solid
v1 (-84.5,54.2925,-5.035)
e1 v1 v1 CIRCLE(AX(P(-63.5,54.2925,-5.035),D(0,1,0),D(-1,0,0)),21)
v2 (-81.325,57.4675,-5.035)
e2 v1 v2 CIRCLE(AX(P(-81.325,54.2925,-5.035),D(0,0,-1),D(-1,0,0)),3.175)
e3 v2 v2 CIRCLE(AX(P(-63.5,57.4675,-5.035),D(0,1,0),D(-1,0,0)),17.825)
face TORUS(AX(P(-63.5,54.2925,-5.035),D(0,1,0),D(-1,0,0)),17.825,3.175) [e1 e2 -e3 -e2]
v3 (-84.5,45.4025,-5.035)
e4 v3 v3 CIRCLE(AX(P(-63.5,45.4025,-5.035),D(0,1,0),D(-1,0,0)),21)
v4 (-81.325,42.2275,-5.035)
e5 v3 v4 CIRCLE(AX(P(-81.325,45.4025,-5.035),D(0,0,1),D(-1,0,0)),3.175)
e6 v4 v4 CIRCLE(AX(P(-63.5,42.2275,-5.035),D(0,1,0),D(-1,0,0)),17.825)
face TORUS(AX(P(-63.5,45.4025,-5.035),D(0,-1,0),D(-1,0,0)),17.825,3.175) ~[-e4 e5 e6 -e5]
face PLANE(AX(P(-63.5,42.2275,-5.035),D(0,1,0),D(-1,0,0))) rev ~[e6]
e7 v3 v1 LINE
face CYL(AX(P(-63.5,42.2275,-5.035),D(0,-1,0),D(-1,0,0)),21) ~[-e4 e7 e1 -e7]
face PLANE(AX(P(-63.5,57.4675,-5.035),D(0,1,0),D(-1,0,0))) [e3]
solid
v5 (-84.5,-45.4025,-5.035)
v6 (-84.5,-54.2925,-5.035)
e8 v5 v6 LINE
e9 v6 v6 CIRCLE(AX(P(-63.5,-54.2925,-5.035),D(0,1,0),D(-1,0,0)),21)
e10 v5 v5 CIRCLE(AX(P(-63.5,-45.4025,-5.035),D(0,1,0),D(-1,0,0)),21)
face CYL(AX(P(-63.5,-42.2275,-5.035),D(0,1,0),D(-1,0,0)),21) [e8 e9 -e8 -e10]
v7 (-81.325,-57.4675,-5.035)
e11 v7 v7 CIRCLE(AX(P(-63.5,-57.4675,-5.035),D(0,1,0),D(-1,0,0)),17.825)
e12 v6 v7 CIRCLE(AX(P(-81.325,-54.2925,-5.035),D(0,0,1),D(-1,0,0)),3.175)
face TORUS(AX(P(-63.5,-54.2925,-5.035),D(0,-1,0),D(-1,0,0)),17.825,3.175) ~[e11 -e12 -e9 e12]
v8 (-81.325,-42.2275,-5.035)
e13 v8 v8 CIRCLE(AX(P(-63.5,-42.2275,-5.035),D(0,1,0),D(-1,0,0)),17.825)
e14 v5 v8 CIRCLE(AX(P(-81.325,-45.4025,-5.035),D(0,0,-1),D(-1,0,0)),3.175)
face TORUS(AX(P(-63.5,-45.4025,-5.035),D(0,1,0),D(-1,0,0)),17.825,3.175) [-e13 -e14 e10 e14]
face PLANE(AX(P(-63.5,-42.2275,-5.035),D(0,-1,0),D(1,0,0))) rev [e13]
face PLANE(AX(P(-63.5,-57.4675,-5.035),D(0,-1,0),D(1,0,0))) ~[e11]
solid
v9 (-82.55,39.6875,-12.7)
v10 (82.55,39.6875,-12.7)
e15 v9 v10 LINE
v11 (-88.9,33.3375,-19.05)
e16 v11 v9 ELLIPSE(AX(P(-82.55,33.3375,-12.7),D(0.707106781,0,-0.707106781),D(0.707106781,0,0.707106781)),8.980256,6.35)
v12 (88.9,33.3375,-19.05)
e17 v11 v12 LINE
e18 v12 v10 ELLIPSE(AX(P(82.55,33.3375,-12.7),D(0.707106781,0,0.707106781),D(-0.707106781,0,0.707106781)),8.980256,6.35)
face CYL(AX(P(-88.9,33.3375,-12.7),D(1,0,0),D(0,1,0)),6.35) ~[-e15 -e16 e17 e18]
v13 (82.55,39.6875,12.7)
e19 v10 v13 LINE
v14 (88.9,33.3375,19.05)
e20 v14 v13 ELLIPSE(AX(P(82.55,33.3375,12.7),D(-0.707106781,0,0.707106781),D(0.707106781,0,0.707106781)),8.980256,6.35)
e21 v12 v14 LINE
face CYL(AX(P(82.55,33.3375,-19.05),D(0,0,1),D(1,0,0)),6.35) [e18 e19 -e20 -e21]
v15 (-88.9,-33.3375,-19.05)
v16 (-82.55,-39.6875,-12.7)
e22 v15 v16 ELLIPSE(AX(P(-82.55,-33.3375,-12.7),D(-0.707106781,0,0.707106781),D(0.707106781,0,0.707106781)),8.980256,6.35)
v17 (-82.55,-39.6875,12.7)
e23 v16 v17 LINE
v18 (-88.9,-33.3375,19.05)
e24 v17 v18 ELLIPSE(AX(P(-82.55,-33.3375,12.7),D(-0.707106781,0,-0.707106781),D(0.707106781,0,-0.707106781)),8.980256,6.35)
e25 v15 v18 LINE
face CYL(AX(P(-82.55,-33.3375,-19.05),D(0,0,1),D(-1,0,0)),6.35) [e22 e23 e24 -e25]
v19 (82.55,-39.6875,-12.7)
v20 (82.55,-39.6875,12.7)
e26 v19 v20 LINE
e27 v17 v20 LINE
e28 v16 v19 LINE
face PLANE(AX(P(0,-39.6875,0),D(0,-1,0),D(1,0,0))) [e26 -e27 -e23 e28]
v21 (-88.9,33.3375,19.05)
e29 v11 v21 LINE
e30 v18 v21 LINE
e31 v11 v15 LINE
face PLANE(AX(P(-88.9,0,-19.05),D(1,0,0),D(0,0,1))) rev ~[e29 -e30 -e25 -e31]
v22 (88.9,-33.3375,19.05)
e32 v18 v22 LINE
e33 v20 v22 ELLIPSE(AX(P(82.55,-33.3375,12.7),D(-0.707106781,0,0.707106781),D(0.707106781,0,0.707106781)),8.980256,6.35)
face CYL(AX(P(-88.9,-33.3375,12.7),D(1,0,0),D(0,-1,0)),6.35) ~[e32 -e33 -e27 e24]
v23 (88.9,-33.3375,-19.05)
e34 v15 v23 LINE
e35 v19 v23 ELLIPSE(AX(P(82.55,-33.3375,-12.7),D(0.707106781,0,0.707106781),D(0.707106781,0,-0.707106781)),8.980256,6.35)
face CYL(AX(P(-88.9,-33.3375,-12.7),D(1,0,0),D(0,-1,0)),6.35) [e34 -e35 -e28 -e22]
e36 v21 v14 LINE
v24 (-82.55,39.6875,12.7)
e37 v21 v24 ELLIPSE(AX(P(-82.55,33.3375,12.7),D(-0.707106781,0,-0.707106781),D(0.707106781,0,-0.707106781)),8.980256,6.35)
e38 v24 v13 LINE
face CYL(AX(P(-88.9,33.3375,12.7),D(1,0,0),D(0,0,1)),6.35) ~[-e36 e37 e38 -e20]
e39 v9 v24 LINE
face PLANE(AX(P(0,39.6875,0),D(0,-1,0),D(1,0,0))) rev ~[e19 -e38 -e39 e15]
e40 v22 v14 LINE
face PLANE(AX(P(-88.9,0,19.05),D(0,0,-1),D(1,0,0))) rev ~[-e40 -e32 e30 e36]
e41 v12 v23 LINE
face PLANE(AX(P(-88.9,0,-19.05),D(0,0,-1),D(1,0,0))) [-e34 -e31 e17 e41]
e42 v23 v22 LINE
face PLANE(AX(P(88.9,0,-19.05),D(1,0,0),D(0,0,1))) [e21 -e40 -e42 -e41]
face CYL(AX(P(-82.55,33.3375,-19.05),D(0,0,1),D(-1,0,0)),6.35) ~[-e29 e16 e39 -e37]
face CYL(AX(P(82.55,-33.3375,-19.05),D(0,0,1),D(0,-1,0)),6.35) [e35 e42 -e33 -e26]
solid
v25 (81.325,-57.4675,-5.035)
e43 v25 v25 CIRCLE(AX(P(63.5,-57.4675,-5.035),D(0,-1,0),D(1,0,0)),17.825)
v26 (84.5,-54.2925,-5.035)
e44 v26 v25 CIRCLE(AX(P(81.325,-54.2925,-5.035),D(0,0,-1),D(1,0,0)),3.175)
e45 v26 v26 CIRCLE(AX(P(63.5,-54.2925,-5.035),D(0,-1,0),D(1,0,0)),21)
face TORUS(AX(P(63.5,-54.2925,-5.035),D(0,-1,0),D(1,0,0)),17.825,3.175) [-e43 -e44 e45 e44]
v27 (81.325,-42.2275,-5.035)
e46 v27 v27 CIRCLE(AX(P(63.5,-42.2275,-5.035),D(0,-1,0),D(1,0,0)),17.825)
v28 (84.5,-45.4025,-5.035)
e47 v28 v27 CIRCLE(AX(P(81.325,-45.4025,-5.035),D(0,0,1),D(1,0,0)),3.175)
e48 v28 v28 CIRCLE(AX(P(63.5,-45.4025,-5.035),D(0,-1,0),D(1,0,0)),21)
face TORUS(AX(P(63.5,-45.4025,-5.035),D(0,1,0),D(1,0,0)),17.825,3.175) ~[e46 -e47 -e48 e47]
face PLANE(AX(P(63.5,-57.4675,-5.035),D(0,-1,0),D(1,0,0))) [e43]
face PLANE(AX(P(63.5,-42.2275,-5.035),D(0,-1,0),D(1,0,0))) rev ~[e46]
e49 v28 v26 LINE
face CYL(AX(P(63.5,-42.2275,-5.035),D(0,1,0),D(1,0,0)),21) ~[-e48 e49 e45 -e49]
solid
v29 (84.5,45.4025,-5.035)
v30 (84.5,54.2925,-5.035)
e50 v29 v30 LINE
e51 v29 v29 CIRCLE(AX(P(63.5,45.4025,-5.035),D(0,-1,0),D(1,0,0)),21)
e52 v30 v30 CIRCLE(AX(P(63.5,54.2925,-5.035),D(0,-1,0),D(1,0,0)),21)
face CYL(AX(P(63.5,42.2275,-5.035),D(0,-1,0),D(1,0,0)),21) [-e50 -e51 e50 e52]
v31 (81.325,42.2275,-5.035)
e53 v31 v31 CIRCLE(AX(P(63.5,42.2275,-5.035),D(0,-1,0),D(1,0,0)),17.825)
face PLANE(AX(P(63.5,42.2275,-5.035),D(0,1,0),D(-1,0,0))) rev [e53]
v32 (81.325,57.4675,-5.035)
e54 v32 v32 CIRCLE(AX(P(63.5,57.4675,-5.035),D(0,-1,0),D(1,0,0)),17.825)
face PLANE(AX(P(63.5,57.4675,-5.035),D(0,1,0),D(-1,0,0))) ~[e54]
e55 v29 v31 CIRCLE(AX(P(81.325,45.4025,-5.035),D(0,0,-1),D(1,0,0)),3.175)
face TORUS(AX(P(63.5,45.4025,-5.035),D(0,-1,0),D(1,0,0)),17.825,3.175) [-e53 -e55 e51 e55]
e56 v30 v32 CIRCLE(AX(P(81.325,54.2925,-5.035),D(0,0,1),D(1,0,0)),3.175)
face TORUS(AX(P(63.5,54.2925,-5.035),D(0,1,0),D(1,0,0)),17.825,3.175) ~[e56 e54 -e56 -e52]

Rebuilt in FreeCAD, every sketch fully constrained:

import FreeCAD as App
import Part
import Sketcher
from FreeCAD import Vector
Q = App.Units.Quantity


def edges_at(feature, points):
    """Names of the edges that pass closest to the given points."""
    edges = feature.Shape.Edges
    near = lambda p: min(range(len(edges)), key=lambda i: edges[i].distToShape(Part.Vertex(*p))[0])
    return sorted({f"Edge{near(p) + 1}" for p in points})


def add_polygon(sketch, points):
    """Adds a closed chain of lines whose ends are joined by coincident constraints."""
    first, n = sketch.GeometryCount, len(points)
    for a, b in zip(points, points[1:] + points[:1]):
        sketch.addGeometry(Part.LineSegment(App.Vector(*a, 0), App.Vector(*b, 0)), False)
    for i in range(n):
        sketch.addConstraint(Sketcher.Constraint("Coincident", first + i, 2, first + (i + 1) % n, 1))

doc = App.newDocument("Part")
body = doc.addObject("PartDesign::Body", "Body")

sketch1 = doc.addObject("Sketcher::SketchObject", "Sketch")
body.addObject(sketch1)
sketch1.AttachmentSupport = (doc.XZ_Plane, [""])
sketch1.MapMode = "FlatFace"
add_polygon(sketch1, [(-89, 19), (-89, -19), (89, -19), (89, 19)])
sketch1.addConstraint(Sketcher.Constraint("Vertical", 0))
sketch1.addConstraint(Sketcher.Constraint("Horizontal", 1))
sketch1.addConstraint(Sketcher.Constraint("Vertical", 2))
sketch1.addConstraint(Sketcher.Constraint("Horizontal", 3))
sketch1.addConstraint(Sketcher.Constraint("Symmetric", 0, 2, 2, 2, -1, 1))
sketch1.addConstraint(Sketcher.Constraint("DistanceX", 1, 1, 1, 2, Q("7 in")))
sketch1.addConstraint(Sketcher.Constraint("DistanceY", 0, 2, 0, 1, Q("1.5 in")))
pad1 = doc.addObject("PartDesign::Pad", "Pad")
body.addObject(pad1)
pad1.Profile = sketch1
pad1.Length = Q("3.125 in")
pad1.Midplane = True
doc.recompute()

fillet = doc.addObject("PartDesign::Fillet", "Fillet")
body.addObject(fillet)
fillet.Base = (pad1, edges_at(pad1, [
    (0, -39.688, 19.05),
    (-88.9, -39.688, 0),
    (0, -39.688, -19.05),
    (88.9, -39.688, 0),
    (88.9, 39.688, 0),
    (0, 39.688, 19.05),
    (-88.9, 39.688, 0),
    (0, 39.688, -19.05),
]))
fillet.Radius = Q("0.25 in")
body2 = doc.addObject("PartDesign::Body", "Body001")

sketch2 = doc.addObject("Sketcher::SketchObject", "Sketch001")
body2.addObject(sketch2)
sketch2.AttachmentSupport = (doc.getObject("XZ_Plane001"), [""])
sketch2.MapMode = "FlatFace"
sketch2.AttachmentOffset = App.Placement(Vector(0, 0, 1.6625 * 25.4), App.Rotation())
sketch2.addGeometry(Part.Circle(Vector(64, -5, 0), Vector(0, 0, 1), 21), False)
sketch2.addConstraint(Sketcher.Constraint("DistanceX", -1, 1, 0, 3, Q("2.5 in")))
sketch2.addConstraint(Sketcher.Constraint("Diameter", 0, Q("42 mm")))
sketch2.addConstraint(Sketcher.Constraint("DistanceY", 0, 3, -1, 1, Q("5.035 mm")))
pad2 = doc.addObject("PartDesign::Pad", "Pad001")
body2.addObject(pad2)
pad2.Profile = sketch2
pad2.Length = Q("0.6 in")
doc.recompute()

fillet2 = doc.addObject("PartDesign::Fillet", "Fillet001")
body2.addObject(fillet2)
fillet2.Base = (pad2, ["Edge1"])
fillet2.UseAllEdges = True
fillet2.Radius = Q("0.125 in")
body3 = doc.addObject("PartDesign::Body", "Body002")
doc.recompute()

mirroring = doc.addObject("Part::Mirroring", "Mirroring")
mirroring.Source = body2
mirroring.Base = Vector(0, 0, 0)
mirroring.Normal = Vector(0, -1, 0)
body3.BaseFeature = mirroring
doc.recompute()
body4 = doc.addObject("PartDesign::Body", "Body003")
doc.recompute()

mirroring2 = doc.addObject("Part::Mirroring", "Mirroring001")
mirroring2.Source = body2
mirroring2.Base = Vector(0, 0, 0)
mirroring2.Normal = Vector(1, 0, 0)
body4.BaseFeature = mirroring2
doc.recompute()
body5 = doc.addObject("PartDesign::Body", "Body004")
doc.recompute()

mirroring3 = doc.addObject("Part::Mirroring", "Mirroring002")
mirroring3.Source = body3
mirroring3.Base = Vector(0, 0, 0)
mirroring3.Normal = Vector(1, 0, 0)
body5.BaseFeature = mirroring3
doc.recompute()
mirroring.Visibility = False
mirroring2.Visibility = False
mirroring3.Visibility = False

doc.recompute()
